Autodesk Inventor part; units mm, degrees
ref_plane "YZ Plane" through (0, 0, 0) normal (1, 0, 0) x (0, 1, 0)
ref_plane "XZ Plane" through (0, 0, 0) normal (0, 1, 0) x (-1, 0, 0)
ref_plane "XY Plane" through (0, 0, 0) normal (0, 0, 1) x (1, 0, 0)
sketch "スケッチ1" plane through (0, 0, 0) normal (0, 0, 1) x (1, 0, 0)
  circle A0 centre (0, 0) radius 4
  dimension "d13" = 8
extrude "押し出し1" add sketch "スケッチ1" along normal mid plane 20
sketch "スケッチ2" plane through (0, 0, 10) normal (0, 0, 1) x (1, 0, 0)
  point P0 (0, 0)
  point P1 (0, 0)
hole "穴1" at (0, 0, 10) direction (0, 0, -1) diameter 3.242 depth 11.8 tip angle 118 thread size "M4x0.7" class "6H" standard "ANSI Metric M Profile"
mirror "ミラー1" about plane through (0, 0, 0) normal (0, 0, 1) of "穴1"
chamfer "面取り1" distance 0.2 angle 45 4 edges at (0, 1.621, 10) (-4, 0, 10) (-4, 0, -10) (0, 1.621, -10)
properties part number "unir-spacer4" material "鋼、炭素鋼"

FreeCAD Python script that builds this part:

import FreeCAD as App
import Part
import Sketcher
Q = App.Units.Quantity


def edges_at(feature, points):
    """Names of the edges that pass closest to the given points."""
    edges = feature.Shape.Edges
    near = lambda p: min(range(len(edges)), key=lambda i: edges[i].distToShape(Part.Vertex(*p))[0])
    return sorted({f"Edge{near(p) + 1}" for p in points})

doc = App.newDocument("Part")
body = doc.addObject("PartDesign::Body", "Body")

sketch1 = doc.addObject("Sketcher::SketchObject", "Sketch")
body.addObject(sketch1)
sketch1.AttachmentSupport = (doc.XY_Plane, [""])
sketch1.MapMode = "FlatFace"
sketch1.addGeometry(Part.Circle(App.Vector(0, 0, 0), App.Vector(0, 0, 1), 4), False)
sketch1.addConstraint([
    Sketcher.Constraint("Coincident", 0, 3, -1, 1),
    Sketcher.Constraint("Diameter", 0, Q("8 mm")),
])
pad1 = doc.addObject("PartDesign::Pad", "Pad")
body.addObject(pad1)
pad1.Profile = sketch1
pad1.Length = 20
pad1.Midplane = True

sketch2 = doc.addObject("Sketcher::SketchObject", "Sketch001")
body.addObject(sketch2)
sketch2.AttachmentSupport = (doc.XY_Plane, [""])
sketch2.MapMode = "FlatFace"
sketch2.AttachmentOffset = App.Placement(App.Vector(0, 0, 10), App.Rotation())
sketch2.addGeometry(Part.Circle(App.Vector(0, 0, 0), App.Vector(0, 0, 1), 1.621), False)
sketch2.addConstraint([
    Sketcher.Constraint("Coincident", 0, 3, -1, 1),
    Sketcher.Constraint("Diameter", 0, Q("3.242 mm")),
])
doc.recompute()
hole = doc.addObject("PartDesign::Hole", "Hole")
body.addObject(hole)
hole.Profile = sketch2
hole.ThreadType = "None"
hole.Diameter = 3.242
hole.DepthType = "Dimension"
hole.Depth = 11.8
hole.DrillPoint = "Angled"
hole.DrillPointAngle = 118
doc.recompute()

mirrored = doc.addObject("PartDesign::Mirrored", "Mirrored")
body.addObject(mirrored)
mirrored.Originals = [hole]
mirrored.MirrorPlane = (doc.XY_Plane, [""])
body.Tip = mirrored
doc.recompute()

chamfer = doc.addObject("PartDesign::Chamfer", "Chamfer")
body.addObject(chamfer)
chamfer.Base = (mirrored, edges_at(mirrored, [
    (0, 1.621, 10),
    (-4, 0, 10),
    (-4, 0, -10),
    (0, 1.621, -10),
]))
chamfer.Size = 0.2

doc.recompute()
